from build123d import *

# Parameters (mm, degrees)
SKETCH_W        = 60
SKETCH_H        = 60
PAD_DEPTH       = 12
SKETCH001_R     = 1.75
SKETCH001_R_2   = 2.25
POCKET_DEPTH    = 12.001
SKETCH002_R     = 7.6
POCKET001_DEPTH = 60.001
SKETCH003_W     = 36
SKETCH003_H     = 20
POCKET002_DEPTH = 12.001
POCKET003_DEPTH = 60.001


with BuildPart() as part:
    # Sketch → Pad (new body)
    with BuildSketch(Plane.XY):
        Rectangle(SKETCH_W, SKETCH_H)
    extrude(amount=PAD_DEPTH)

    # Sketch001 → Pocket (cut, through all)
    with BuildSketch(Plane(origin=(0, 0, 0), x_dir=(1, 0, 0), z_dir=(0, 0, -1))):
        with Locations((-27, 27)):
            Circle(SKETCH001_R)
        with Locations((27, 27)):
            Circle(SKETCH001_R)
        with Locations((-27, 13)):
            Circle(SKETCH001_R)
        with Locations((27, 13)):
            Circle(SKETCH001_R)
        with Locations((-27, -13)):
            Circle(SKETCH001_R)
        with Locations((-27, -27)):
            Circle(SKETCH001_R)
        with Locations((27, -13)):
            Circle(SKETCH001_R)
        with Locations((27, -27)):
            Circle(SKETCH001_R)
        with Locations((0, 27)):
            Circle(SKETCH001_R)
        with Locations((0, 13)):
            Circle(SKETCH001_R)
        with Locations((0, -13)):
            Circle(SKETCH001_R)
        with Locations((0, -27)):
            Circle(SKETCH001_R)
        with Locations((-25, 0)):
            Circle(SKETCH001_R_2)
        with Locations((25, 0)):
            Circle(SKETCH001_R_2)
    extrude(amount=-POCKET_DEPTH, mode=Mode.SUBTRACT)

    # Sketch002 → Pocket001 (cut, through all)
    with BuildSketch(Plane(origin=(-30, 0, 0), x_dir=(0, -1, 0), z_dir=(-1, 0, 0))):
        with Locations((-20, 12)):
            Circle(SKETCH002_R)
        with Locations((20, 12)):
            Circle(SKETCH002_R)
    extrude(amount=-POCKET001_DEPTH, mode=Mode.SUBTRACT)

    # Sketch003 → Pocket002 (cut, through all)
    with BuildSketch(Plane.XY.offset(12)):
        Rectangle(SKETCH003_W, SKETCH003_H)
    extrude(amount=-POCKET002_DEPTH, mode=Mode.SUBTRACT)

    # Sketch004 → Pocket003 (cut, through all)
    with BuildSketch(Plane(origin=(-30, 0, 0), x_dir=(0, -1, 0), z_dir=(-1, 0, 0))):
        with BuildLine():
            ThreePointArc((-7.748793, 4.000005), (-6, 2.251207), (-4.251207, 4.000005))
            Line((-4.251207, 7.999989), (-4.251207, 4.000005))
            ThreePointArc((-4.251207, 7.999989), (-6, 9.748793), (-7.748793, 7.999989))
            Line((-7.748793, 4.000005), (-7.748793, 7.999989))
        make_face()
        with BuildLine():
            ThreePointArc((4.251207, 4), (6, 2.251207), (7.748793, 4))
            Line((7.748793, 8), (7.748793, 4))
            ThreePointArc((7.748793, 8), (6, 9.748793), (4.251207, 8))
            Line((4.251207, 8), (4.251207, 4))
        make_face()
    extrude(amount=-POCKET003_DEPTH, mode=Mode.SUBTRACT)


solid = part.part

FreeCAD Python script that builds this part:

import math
import FreeCAD as App
import Part
import Sketcher
from FreeCAD import Vector

doc = App.newDocument("Part")
body = doc.addObject("PartDesign::Body", "Body")

sketch1 = doc.addObject("Sketcher::SketchObject", "Sketch")
body.addObject(sketch1)
sketch1.AttachmentSupport = (doc.XY_Plane, [""])
sketch1.MapMode = "FlatFace"
sketch1.addGeometry([
    Part.LineSegment(Vector(-30, 30, 0), Vector(-30, -30, 0)),
    Part.LineSegment(Vector(-30, -30, 0), Vector(30, -30, 0)),
    Part.LineSegment(Vector(30, -30, 0), Vector(30, 30, 0)),
    Part.LineSegment(Vector(30, 30, 0), Vector(-30, 30, 0)),
], False)
sketch1.addConstraint([
    Sketcher.Constraint("Coincident", 0, 2, 1, 1),
    Sketcher.Constraint("Coincident", 1, 2, 2, 1),
    Sketcher.Constraint("Coincident", 2, 2, 3, 1),
    Sketcher.Constraint("Coincident", 3, 2, 0, 1),
    Sketcher.Constraint("Vertical", 0),
    Sketcher.Constraint("Horizontal", 1),
    Sketcher.Constraint("Vertical", 2),
    Sketcher.Constraint("Horizontal", 3),
    Sketcher.Constraint("Symmetric", 0, 2, 2, 2, -1, 1),
    Sketcher.Constraint("Equal", 3, 0),
    Sketcher.Constraint("DistanceX", 1, 1, 1, 2, 60.0),
])
pad1 = doc.addObject("PartDesign::Pad", "Pad")
body.addObject(pad1)
pad1.Profile = sketch1
pad1.Length = 12

sketch2 = doc.addObject("Sketcher::SketchObject", "Sketch001")
body.addObject(sketch2)
sketch2.AttachmentSupport = (doc.XY_Plane, [""])
sketch2.MapMode = "FlatFace"
sketch2.addGeometry([
    Part.Circle(Vector(-27, -27, 0), Vector(0, 0, 1), 1.75),
    Part.Circle(Vector(27, -27, 0), Vector(0, 0, 1), 1.75),
    Part.Circle(Vector(-27, -13, 0), Vector(0, 0, 1), 1.75),
    Part.Circle(Vector(27, -13, 0), Vector(0, 0, 1), 1.75),
    Part.Circle(Vector(-27, 13, 0), Vector(0, 0, 1), 1.75),
    Part.Circle(Vector(-27, 27, 0), Vector(0, 0, 1), 1.75),
    Part.Circle(Vector(27, 13, 0), Vector(0, 0, 1), 1.75),
    Part.Circle(Vector(27, 27, 0), Vector(0, 0, 1), 1.75),
    Part.Circle(Vector(0, -27, 0), Vector(0, 0, 1), 1.75),
    Part.Circle(Vector(0, -13, 0), Vector(0, 0, 1), 1.75),
    Part.Circle(Vector(0, 13, 0), Vector(0, 0, 1), 1.75),
    Part.Circle(Vector(0, 27, 0), Vector(0, 0, 1), 1.75),
    Part.Circle(Vector(-25, 0, 0), Vector(0, 0, 1), 2.25),
    Part.Circle(Vector(25, 0, 0), Vector(0, 0, 1), 2.25),
], False)
sketch2.addConstraint([
    Sketcher.Constraint("Equal", 0, 1),
    Sketcher.Constraint("Equal", 1, 2),
    Sketcher.Constraint("Equal", 2, 3),
    Sketcher.Constraint("Equal", 3, 4),
    Sketcher.Constraint("Equal", 4, 5),
    Sketcher.Constraint("Equal", 5, 6),
    Sketcher.Constraint("Equal", 6, 7),
    Sketcher.Constraint("Equal", 7, 8),
    Sketcher.Constraint("Equal", 8, 9),
    Sketcher.Constraint("Equal", 9, 10),
    Sketcher.Constraint("Equal", 10, 11),
    Sketcher.Constraint("Equal", 12, 13),
    Sketcher.Constraint("Symmetric", 3, 3, 4, 3, -1, 1),
    Sketcher.Constraint("Symmetric", 1, 3, 5, 3, -1, 1),
    Sketcher.Constraint("Symmetric", 2, 3, 6, 3, -1, 1),
    Sketcher.Constraint("Symmetric", 0, 3, 7, 3, -1, 1),
    Sketcher.Constraint("Symmetric", 9, 3, 10, 3, -1, 1),
    Sketcher.Constraint("Symmetric", 8, 3, 11, 3, -1, 1),
    Sketcher.Constraint("Symmetric", 12, 3, 13, 3, -1, 1),
    Sketcher.Constraint("Symmetric", 0, 3, 1, 3, -2),
    Sketcher.Constraint("Symmetric", 2, 3, 3, 3, -2),
    Sketcher.Constraint("PointOnObject", 8, 3, -2),
    Sketcher.Constraint("PointOnObject", 9, 3, -2),
    Sketcher.Constraint("PointOnObject", 12, 3, -1),
    Sketcher.Constraint("Horizontal", 1, 3, 8, 3),
    Sketcher.Constraint("Horizontal", 3, 3, 9, 3),
    Sketcher.Constraint("Vertical", 0, 3, 2, 3),
    Sketcher.Constraint("Diameter", 0, 3.5),
    Sketcher.Constraint("Diameter", 12, 4.5),
    Sketcher.Constraint("DistanceX", 0, 3, -1, 1, 27.0),
    Sketcher.Constraint("DistanceY", 0, 3, -1, 1, 27.0),
    Sketcher.Constraint("DistanceY", 2, 3, -1, 1, 13.0),
    Sketcher.Constraint("DistanceX", 12, 3, -1, 1, 25.0),
])
pocket1 = doc.addObject("PartDesign::Pocket", "Pocket")
body.addObject(pocket1)
pocket1.Profile = sketch2
pocket1.Type = "ThroughAll"
pocket1.Reversed = True

sketch3 = doc.addObject("Sketcher::SketchObject", "Sketch002")
body.addObject(sketch3)
sketch3.AttachmentSupport = (doc.YZ_Plane, [""])
sketch3.MapMode = "FlatFace"
sketch3.AttachmentOffset = App.Placement(Vector(0, 0, -30), App.Rotation())
sketch3.addGeometry([
    Part.Circle(Vector(20, 12, 0), Vector(0, 0, 1), 7.6),
    Part.Circle(Vector(-20, 12, 0), Vector(0, 0, 1), 7.6),
], False)
sketch3.addConstraint([
    Sketcher.Constraint("Equal", 0, 1),
    Sketcher.Constraint("Symmetric", 0, 3, 1, 3, -2),
    Sketcher.Constraint("Diameter", 0, 15.2),
    Sketcher.Constraint("DistanceX", -1, 1, 0, 3, 20.0),
    Sketcher.Constraint("DistanceY", -1, 1, 0, 3, 12.0),
])
pocket2 = doc.addObject("PartDesign::Pocket", "Pocket001")
body.addObject(pocket2)
pocket2.Profile = sketch3
pocket2.Type = "ThroughAll"
pocket2.Reversed = True

sketch4 = doc.addObject("Sketcher::SketchObject", "Sketch003")
body.addObject(sketch4)
sketch4.AttachmentSupport = (doc.XY_Plane, [""])
sketch4.MapMode = "FlatFace"
sketch4.AttachmentOffset = App.Placement(Vector(0, 0, 12), App.Rotation())
sketch4.addGeometry([
    Part.LineSegment(Vector(-18, 10, 0), Vector(-18, -10, 0)),
    Part.LineSegment(Vector(-18, -10, 0), Vector(18, -10, 0)),
    Part.LineSegment(Vector(18, -10, 0), Vector(18, 10, 0)),
    Part.LineSegment(Vector(18, 10, 0), Vector(-18, 10, 0)),
], False)
sketch4.addConstraint([
    Sketcher.Constraint("Coincident", 0, 2, 1, 1),
    Sketcher.Constraint("Coincident", 1, 2, 2, 1),
    Sketcher.Constraint("Coincident", 2, 2, 3, 1),
    Sketcher.Constraint("Coincident", 3, 2, 0, 1),
    Sketcher.Constraint("Vertical", 0),
    Sketcher.Constraint("Horizontal", 1),
    Sketcher.Constraint("Vertical", 2),
    Sketcher.Constraint("Horizontal", 3),
    Sketcher.Constraint("Symmetric", 0, 2, 2, 2, -1, 1),
    Sketcher.Constraint("DistanceX", 1, 1, 1, 2, 36.0),
    Sketcher.Constraint("DistanceY", 0, 2, 0, 1, 20.0),
])
pocket3 = doc.addObject("PartDesign::Pocket", "Pocket002")
body.addObject(pocket3)
pocket3.Profile = sketch4
pocket3.Type = "ThroughAll"

sketch5 = doc.addObject("Sketcher::SketchObject", "Sketch004")
body.addObject(sketch5)
sketch5.AttachmentSupport = (doc.YZ_Plane, [""])
sketch5.MapMode = "FlatFace"
sketch5.AttachmentOffset = App.Placement(Vector(0, 0, -30), App.Rotation())
sketch5.addGeometry([
    Part.ArcOfCircle(Part.Circle(Vector(6, 4, 0), Vector(0, 0, 1), 1.748793), math.radians(179.999836), math.radians(360.000164)),
    Part.LineSegment(Vector(4.251207, 4.000005, 0), Vector(4.251207, 7.999989, 0)),
    Part.ArcOfCircle(Part.Circle(Vector(6, 8, 0), Vector(0, 0, 1), 1.748793), math.radians(-0.00036), math.radians(180.00036)),
    Part.LineSegment(Vector(7.748793, 7.999989, 0), Vector(7.748793, 4.000005, 0)),
    Part.ArcOfCircle(Part.Circle(Vector(-6, 4, 0), Vector(0, 0, 1), 1.748793), math.radians(180), math.radians(360)),
    Part.LineSegment(Vector(-7.748793, 4, 0), Vector(-7.748793, 8, 0)),
    Part.ArcOfCircle(Part.Circle(Vector(-6, 8, 0), Vector(0, 0, 1), 1.748793), math.radians(0), math.radians(180)),
    Part.LineSegment(Vector(-4.251207, 8, 0), Vector(-4.251207, 4, 0)),
], False)
sketch5.addConstraint([
    Sketcher.Constraint("Coincident", 0, 1, 1, 1),
    Sketcher.Constraint("Coincident", 1, 2, 2, 2),
    Sketcher.Constraint("Coincident", 2, 1, 3, 1),
    Sketcher.Constraint("Coincident", 3, 2, 0, 2),
    Sketcher.Constraint("Tangent", 4, 1, 5, 1),
    Sketcher.Constraint("Tangent", 5, 2, 6, 2),
    Sketcher.Constraint("Tangent", 6, 1, 7, 1),
    Sketcher.Constraint("Tangent", 7, 2, 4, 2),
    Sketcher.Constraint("Vertical", 1),
    Sketcher.Constraint("Vertical", 3),
    Sketcher.Constraint("Vertical", 5),
    Sketcher.Constraint("Vertical", 7),
    Sketcher.Constraint("Equal", 2, 4),
    Sketcher.Constraint("Symmetric", 0, 3, 4, 3, -2),
    Sketcher.Constraint("Horizontal", 2, 3, 6, 3),
    Sketcher.Constraint("Horizontal", 1, 2, 2, 1),
    Sketcher.Constraint("Horizontal", 0, 1, 3, 2),
    Sketcher.Constraint("DistanceY", 5, 1, 5, 2, 4.0),
    Sketcher.Constraint("DistanceX", -1, 1, 0, 3, 6.0),
    Sketcher.Constraint("DistanceY", -1, 1, 0, 3, 4.0),
    Sketcher.Constraint("Radius", 0, 1.748793),
    Sketcher.Constraint("DistanceY", 1, 1, 1, 2, 3.999984),
    Sketcher.Constraint("DistanceY", -1, 1, 1, 2, 7.999989),
])
pocket4 = doc.addObject("PartDesign::Pocket", "Pocket003")
body.addObject(pocket4)
pocket4.Profile = sketch5
pocket4.Type = "ThroughAll"
pocket4.Reversed = True

doc.recompute()
